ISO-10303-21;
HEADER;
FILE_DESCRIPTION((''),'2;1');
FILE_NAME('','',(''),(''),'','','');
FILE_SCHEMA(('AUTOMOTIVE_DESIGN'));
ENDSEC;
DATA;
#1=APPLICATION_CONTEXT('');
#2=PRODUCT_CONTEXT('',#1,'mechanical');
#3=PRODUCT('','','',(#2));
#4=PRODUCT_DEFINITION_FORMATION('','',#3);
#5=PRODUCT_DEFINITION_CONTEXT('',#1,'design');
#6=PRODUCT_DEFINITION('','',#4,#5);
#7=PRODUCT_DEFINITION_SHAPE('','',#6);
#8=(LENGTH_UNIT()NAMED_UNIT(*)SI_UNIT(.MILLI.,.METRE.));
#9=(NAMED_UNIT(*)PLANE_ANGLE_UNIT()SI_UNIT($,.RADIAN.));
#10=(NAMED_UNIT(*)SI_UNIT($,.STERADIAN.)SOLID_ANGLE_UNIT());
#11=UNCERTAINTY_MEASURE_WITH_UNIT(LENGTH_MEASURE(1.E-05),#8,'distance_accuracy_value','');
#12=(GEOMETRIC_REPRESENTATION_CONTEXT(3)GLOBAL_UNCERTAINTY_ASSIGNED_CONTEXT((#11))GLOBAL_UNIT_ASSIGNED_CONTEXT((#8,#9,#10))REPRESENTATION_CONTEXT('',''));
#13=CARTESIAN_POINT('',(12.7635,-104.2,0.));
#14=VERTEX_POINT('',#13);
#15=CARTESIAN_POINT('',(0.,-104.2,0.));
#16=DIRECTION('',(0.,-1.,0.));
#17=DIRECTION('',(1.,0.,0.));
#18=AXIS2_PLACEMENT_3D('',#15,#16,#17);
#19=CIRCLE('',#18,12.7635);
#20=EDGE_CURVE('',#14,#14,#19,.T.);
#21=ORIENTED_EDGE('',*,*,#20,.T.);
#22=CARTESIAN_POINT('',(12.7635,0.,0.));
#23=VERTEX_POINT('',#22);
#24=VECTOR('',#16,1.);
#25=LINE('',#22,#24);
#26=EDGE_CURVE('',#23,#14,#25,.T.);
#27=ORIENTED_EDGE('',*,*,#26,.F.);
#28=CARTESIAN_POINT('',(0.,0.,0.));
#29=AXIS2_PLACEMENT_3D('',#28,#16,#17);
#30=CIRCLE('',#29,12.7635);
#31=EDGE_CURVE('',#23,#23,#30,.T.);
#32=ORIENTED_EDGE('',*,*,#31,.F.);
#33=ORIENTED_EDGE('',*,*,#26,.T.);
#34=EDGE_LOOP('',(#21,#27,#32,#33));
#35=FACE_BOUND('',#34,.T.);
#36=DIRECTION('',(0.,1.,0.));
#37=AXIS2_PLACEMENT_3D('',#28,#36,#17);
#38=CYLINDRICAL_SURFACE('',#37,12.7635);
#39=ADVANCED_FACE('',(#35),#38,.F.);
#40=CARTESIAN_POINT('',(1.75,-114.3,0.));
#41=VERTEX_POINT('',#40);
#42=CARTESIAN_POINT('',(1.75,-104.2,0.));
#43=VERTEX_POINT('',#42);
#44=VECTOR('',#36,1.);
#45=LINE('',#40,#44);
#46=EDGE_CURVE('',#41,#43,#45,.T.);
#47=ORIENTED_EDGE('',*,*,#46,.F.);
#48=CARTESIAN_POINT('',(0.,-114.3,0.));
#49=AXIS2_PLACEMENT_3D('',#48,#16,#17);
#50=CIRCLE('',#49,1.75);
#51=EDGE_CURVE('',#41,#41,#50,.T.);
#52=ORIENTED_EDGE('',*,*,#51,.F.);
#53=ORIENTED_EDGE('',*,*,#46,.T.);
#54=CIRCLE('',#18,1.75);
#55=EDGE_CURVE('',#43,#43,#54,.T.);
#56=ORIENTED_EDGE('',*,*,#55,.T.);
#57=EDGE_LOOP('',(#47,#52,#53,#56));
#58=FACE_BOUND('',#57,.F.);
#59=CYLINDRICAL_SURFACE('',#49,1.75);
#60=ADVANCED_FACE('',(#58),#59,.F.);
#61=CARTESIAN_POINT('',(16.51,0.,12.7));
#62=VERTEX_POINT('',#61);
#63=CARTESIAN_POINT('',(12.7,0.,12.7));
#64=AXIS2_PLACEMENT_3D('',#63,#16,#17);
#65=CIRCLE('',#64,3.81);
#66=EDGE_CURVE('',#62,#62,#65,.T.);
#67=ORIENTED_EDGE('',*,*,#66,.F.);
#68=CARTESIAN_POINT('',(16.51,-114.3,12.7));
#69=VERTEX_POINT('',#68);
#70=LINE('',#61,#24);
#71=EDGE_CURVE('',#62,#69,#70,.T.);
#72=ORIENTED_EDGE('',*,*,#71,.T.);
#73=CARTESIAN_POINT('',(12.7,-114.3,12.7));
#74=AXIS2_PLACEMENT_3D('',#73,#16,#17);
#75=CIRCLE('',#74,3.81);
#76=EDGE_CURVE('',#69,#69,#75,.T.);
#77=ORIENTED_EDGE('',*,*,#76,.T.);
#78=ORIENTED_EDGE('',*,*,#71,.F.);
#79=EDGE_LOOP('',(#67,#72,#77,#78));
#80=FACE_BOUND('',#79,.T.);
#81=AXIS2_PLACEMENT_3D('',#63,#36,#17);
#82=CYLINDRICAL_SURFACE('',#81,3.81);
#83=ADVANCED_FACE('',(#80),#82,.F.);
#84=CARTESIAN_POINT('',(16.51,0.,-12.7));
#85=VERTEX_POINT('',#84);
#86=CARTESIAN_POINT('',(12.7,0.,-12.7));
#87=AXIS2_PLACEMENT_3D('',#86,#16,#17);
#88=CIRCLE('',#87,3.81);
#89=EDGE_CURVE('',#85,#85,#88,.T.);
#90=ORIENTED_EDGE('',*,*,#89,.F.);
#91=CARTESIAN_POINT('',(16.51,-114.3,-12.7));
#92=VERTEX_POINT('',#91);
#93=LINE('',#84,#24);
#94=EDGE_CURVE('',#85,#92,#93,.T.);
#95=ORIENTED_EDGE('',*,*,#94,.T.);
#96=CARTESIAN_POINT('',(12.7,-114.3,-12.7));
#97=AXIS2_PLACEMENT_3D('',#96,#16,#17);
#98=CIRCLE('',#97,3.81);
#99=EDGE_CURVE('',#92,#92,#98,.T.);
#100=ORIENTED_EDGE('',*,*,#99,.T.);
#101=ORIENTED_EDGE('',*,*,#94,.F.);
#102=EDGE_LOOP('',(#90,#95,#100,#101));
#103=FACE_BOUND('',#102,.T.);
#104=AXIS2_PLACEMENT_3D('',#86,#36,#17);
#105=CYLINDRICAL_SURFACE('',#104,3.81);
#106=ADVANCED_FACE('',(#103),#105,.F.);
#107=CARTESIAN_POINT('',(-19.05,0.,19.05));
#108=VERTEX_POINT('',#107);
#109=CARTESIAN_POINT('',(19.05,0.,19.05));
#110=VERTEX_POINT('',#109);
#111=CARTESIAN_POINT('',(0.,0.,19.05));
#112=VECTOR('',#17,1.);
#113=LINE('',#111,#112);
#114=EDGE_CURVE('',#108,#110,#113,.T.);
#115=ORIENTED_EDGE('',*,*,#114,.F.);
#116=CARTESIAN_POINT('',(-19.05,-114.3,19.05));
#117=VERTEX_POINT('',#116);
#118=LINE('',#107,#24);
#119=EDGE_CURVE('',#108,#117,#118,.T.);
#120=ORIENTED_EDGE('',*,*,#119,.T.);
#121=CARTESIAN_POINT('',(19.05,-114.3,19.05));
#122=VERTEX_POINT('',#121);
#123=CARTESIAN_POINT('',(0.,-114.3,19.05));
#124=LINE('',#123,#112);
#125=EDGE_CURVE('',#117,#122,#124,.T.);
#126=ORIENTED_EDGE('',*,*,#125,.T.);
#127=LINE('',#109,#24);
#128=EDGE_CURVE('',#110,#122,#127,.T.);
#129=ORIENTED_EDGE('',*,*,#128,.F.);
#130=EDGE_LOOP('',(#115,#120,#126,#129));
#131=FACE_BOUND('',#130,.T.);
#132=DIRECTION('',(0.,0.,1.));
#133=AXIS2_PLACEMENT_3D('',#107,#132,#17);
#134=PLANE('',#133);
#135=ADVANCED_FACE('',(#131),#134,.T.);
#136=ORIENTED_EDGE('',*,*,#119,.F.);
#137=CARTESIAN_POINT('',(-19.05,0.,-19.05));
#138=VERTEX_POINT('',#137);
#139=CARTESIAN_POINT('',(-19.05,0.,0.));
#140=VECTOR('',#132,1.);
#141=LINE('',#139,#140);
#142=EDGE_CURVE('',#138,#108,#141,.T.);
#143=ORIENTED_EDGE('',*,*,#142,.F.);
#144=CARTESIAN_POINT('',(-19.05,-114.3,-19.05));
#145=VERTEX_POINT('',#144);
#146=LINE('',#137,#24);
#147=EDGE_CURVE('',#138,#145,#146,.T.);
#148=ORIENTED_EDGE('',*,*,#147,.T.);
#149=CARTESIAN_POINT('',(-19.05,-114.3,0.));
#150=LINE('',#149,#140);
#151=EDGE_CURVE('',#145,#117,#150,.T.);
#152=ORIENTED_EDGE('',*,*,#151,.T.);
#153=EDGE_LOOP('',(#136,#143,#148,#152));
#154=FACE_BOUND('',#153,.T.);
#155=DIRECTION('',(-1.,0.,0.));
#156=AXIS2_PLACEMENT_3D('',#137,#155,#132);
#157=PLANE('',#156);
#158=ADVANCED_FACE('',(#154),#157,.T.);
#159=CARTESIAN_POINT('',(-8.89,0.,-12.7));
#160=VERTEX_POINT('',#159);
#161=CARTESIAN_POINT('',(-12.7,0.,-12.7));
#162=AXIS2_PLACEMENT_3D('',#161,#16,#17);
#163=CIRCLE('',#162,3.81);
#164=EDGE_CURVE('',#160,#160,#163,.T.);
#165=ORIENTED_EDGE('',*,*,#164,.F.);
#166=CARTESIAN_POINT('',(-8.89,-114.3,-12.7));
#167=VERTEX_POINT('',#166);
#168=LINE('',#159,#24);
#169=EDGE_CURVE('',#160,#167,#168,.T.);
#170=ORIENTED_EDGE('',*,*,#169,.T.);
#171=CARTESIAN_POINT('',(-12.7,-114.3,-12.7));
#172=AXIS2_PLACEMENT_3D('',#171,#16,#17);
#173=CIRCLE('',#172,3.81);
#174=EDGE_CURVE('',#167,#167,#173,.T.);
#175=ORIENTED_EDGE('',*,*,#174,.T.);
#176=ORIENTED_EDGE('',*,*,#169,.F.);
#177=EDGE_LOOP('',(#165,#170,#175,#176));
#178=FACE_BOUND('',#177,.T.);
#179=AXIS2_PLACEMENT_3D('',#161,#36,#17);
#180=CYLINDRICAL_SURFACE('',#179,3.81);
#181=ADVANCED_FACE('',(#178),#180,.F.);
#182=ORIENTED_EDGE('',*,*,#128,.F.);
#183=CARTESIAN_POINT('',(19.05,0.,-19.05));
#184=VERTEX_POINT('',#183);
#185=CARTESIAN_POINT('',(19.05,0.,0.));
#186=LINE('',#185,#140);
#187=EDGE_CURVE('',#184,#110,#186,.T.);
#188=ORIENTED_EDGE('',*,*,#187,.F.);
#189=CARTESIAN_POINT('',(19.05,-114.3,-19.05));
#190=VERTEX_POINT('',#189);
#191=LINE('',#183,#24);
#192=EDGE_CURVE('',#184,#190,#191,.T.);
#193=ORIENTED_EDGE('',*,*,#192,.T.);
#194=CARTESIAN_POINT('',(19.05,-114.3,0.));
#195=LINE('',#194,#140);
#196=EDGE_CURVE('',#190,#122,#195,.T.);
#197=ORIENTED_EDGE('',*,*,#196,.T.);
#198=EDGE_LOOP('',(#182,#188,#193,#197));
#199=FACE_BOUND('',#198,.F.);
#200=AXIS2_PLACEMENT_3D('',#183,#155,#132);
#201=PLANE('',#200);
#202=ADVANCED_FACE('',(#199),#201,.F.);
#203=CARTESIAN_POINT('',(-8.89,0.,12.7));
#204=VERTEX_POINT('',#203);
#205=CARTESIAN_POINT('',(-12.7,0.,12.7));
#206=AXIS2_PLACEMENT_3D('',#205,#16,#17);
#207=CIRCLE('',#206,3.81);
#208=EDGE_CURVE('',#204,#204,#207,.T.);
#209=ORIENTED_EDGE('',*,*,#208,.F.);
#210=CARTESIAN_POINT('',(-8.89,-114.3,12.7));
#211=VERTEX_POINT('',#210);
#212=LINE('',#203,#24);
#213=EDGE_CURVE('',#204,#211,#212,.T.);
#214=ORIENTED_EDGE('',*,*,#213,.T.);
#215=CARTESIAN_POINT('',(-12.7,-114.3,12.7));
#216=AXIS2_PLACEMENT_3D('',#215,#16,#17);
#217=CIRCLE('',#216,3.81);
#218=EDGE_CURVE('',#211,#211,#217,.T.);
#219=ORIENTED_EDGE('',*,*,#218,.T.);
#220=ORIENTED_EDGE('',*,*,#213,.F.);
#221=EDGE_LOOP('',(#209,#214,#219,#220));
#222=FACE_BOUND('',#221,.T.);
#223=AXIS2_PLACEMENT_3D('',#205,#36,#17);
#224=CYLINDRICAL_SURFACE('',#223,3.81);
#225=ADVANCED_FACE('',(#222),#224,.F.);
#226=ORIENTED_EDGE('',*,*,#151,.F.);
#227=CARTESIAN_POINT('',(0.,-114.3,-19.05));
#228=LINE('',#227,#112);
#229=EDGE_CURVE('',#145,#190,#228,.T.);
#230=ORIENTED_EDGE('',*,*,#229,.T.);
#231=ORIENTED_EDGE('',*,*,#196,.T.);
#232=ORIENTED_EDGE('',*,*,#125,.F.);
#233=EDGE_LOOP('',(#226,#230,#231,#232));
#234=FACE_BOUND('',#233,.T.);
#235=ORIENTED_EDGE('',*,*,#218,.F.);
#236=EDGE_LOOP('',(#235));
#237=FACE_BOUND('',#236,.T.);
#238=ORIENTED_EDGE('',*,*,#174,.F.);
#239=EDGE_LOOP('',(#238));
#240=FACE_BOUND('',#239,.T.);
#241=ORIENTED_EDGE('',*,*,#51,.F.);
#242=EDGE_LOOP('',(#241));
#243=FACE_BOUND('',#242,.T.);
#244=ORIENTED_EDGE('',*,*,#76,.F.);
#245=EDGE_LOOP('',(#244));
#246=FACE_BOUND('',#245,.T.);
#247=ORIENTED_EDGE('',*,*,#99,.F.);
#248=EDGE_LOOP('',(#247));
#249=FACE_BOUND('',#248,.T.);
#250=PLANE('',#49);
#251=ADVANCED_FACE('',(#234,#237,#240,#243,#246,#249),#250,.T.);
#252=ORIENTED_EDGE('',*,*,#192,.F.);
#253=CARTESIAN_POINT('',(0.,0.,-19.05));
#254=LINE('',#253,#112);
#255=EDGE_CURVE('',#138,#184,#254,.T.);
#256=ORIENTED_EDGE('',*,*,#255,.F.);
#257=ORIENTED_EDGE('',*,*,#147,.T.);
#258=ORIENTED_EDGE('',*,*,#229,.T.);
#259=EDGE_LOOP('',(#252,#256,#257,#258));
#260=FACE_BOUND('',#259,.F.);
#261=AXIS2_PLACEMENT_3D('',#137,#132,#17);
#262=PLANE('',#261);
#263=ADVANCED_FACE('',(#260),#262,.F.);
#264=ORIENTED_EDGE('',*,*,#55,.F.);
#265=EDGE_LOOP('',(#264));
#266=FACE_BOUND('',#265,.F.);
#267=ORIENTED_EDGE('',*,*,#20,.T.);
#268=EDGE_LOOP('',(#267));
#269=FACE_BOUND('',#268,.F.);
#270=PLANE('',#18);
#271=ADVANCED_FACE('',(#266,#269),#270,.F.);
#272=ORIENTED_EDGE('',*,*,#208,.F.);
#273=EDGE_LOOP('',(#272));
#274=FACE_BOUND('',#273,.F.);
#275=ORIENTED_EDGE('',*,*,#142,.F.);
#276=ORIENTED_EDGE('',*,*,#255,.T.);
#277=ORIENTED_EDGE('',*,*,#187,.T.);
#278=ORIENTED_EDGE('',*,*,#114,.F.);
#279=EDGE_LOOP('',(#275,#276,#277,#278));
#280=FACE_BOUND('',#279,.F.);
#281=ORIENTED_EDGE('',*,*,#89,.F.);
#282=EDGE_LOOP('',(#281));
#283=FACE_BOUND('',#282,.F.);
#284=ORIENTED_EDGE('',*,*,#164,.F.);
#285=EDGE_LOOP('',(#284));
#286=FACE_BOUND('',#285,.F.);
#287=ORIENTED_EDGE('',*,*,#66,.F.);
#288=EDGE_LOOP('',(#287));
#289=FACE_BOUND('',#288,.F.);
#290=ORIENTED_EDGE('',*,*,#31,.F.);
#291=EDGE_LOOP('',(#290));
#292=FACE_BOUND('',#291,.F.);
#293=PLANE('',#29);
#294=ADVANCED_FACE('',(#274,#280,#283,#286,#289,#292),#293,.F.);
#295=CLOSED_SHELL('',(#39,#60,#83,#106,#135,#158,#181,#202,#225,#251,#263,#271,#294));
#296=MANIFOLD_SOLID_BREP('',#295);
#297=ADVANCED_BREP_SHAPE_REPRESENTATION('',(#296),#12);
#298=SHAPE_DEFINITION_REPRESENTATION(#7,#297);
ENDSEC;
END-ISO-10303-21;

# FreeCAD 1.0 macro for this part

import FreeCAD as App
import Part
import Sketcher

V = App.Vector
Q = App.Units.Quantity

doc = App.newDocument("Part")
params = doc.addObject("Spreadsheet::Sheet", "Params")
for row, (alias, value) in enumerate([
    ("sketch1_diameter", "0.3 in"),
    ("sketch1_diameter2", "1.005 in"),
    ("sketch1_width", "1.5 in"),
    ("pad1_length", "4.5 in"),
    ("sketch2_diameter", "1.005 in"),
    ("pad2_length", "10.1 mm"),
], start=1):
    params.set(f"A{row}", alias)
    params.set(f"B{row}", "=" + value)
    params.setAlias(f"B{row}", alias)

body = doc.addObject("PartDesign::Body", "Body")

# Sketch on XZ plane
sketch1 = body.newObject("Sketcher::SketchObject", "Sketch")
sketch1.AttachmentSupport = (doc.getObject("XZ_Plane"), [""])
sketch1.MapMode = "FlatFace"
sketch1.addGeometry([
    Part.LineSegment(V(-19.05, 19.05, 0), V(-19.05, -19.05, 0)),  # 0
    Part.LineSegment(V(-19.05, -19.05, 0), V(19.05, -19.05, 0)),  # 1
    Part.LineSegment(V(19.05, -19.05, 0), V(19.05, 19.05, 0)),  # 2
    Part.LineSegment(V(19.05, 19.05, 0), V(-19.05, 19.05, 0)),  # 3
    Part.Circle(V(-12.7, -12.7, 0), V(0, 0, 1), 3.81),  # 4
    Part.Circle(V(12.7, -12.7, 0), V(0, 0, 1), 3.81),  # 5
    Part.Circle(V(-12.7, 12.7, 0), V(0, 0, 1), 3.81),  # 6
    Part.Circle(V(0, 0, 0), V(0, 0, 1), 12.7635),  # 7
    Part.Circle(V(12.7, 12.7, 0), V(0, 0, 1), 3.81),  # 8
], False)
sketch1.addConstraint([
    Sketcher.Constraint("Coincident", 0, 2, 1, 1),
    Sketcher.Constraint("Coincident", 1, 2, 2, 1),
    Sketcher.Constraint("Coincident", 2, 2, 3, 1),
    Sketcher.Constraint("Coincident", 3, 2, 0, 1),
    Sketcher.Constraint("Vertical", 0),
    Sketcher.Constraint("Horizontal", 1),
    Sketcher.Constraint("Vertical", 2),
    Sketcher.Constraint("Horizontal", 3),
    Sketcher.Constraint("Coincident", 7, 3, -1, 1),
    Sketcher.Constraint("Equal", 4, 5),
    Sketcher.Constraint("Equal", 5, 6),
    Sketcher.Constraint("Equal", 6, 8),
    Sketcher.Constraint("Symmetric", 5, 3, 6, 3, -1, 1),
    Sketcher.Constraint("Symmetric", 4, 3, 8, 3, -1, 1),
    Sketcher.Constraint("Symmetric", 0, 2, 2, 2, -1, 1),
    Sketcher.Constraint("Symmetric", 4, 3, 5, 3, -2),
    Sketcher.Constraint("Equal", 3, 0),
    Sketcher.Constraint("Diameter", 4, Q("0.3 in")),
    Sketcher.Constraint("Diameter", 7, Q("1.005 in")),
    Sketcher.Constraint("DistanceX", 1, 1, 1, 2, Q("1.5 in")),
    Sketcher.Constraint("DistanceX", 4, 3, 5, 3, Q("1 in")),
    Sketcher.Constraint("DistanceY", 4, 3, 6, 3, Q("1 in")),
])
sketch1.setExpression("Constraints[17]", "Params.sketch1_diameter")
sketch1.setExpression("Constraints[18]", "Params.sketch1_diameter2")
sketch1.setExpression("Constraints[19]", "Params.sketch1_width")
pad1 = body.newObject("PartDesign::Pad", "Pad")
pad1.Profile = sketch1
pad1.setExpression("Length", "Params.pad1_length")

# Sketch on XZ plane
sketch2 = body.newObject("Sketcher::SketchObject", "Sketch001")
sketch2.AttachmentSupport = (doc.getObject("XZ_Plane"), [""])
sketch2.MapMode = "FlatFace"
sketch2.AttachmentOffset = App.Placement(V(0, 0, 4.5 * 25.4), App.Rotation())
sketch2.addGeometry([
    Part.Circle(V(0, 0, 0), V(0, 0, 1), 12.7635),
    Part.Circle(V(0, 0, 0), V(0, 0, 1), 1.75),
], False)
sketch2.addConstraint([
    Sketcher.Constraint("Coincident", 0, 3, -1, 1),
    Sketcher.Constraint("Coincident", 1, 3, -1, 1),
    Sketcher.Constraint("Diameter", 0, Q("1.005 in")),
    Sketcher.Constraint("Diameter", 1, Q("3.5 mm")),
])
sketch2.setExpression("Constraints[2]", "Params.sketch2_diameter")
pad2 = body.newObject("PartDesign::Pad", "Pad001")
pad2.Profile = sketch2
pad2.setExpression("Length", "Params.pad2_length")
pad2.Reversed = True

doc.recompute()
